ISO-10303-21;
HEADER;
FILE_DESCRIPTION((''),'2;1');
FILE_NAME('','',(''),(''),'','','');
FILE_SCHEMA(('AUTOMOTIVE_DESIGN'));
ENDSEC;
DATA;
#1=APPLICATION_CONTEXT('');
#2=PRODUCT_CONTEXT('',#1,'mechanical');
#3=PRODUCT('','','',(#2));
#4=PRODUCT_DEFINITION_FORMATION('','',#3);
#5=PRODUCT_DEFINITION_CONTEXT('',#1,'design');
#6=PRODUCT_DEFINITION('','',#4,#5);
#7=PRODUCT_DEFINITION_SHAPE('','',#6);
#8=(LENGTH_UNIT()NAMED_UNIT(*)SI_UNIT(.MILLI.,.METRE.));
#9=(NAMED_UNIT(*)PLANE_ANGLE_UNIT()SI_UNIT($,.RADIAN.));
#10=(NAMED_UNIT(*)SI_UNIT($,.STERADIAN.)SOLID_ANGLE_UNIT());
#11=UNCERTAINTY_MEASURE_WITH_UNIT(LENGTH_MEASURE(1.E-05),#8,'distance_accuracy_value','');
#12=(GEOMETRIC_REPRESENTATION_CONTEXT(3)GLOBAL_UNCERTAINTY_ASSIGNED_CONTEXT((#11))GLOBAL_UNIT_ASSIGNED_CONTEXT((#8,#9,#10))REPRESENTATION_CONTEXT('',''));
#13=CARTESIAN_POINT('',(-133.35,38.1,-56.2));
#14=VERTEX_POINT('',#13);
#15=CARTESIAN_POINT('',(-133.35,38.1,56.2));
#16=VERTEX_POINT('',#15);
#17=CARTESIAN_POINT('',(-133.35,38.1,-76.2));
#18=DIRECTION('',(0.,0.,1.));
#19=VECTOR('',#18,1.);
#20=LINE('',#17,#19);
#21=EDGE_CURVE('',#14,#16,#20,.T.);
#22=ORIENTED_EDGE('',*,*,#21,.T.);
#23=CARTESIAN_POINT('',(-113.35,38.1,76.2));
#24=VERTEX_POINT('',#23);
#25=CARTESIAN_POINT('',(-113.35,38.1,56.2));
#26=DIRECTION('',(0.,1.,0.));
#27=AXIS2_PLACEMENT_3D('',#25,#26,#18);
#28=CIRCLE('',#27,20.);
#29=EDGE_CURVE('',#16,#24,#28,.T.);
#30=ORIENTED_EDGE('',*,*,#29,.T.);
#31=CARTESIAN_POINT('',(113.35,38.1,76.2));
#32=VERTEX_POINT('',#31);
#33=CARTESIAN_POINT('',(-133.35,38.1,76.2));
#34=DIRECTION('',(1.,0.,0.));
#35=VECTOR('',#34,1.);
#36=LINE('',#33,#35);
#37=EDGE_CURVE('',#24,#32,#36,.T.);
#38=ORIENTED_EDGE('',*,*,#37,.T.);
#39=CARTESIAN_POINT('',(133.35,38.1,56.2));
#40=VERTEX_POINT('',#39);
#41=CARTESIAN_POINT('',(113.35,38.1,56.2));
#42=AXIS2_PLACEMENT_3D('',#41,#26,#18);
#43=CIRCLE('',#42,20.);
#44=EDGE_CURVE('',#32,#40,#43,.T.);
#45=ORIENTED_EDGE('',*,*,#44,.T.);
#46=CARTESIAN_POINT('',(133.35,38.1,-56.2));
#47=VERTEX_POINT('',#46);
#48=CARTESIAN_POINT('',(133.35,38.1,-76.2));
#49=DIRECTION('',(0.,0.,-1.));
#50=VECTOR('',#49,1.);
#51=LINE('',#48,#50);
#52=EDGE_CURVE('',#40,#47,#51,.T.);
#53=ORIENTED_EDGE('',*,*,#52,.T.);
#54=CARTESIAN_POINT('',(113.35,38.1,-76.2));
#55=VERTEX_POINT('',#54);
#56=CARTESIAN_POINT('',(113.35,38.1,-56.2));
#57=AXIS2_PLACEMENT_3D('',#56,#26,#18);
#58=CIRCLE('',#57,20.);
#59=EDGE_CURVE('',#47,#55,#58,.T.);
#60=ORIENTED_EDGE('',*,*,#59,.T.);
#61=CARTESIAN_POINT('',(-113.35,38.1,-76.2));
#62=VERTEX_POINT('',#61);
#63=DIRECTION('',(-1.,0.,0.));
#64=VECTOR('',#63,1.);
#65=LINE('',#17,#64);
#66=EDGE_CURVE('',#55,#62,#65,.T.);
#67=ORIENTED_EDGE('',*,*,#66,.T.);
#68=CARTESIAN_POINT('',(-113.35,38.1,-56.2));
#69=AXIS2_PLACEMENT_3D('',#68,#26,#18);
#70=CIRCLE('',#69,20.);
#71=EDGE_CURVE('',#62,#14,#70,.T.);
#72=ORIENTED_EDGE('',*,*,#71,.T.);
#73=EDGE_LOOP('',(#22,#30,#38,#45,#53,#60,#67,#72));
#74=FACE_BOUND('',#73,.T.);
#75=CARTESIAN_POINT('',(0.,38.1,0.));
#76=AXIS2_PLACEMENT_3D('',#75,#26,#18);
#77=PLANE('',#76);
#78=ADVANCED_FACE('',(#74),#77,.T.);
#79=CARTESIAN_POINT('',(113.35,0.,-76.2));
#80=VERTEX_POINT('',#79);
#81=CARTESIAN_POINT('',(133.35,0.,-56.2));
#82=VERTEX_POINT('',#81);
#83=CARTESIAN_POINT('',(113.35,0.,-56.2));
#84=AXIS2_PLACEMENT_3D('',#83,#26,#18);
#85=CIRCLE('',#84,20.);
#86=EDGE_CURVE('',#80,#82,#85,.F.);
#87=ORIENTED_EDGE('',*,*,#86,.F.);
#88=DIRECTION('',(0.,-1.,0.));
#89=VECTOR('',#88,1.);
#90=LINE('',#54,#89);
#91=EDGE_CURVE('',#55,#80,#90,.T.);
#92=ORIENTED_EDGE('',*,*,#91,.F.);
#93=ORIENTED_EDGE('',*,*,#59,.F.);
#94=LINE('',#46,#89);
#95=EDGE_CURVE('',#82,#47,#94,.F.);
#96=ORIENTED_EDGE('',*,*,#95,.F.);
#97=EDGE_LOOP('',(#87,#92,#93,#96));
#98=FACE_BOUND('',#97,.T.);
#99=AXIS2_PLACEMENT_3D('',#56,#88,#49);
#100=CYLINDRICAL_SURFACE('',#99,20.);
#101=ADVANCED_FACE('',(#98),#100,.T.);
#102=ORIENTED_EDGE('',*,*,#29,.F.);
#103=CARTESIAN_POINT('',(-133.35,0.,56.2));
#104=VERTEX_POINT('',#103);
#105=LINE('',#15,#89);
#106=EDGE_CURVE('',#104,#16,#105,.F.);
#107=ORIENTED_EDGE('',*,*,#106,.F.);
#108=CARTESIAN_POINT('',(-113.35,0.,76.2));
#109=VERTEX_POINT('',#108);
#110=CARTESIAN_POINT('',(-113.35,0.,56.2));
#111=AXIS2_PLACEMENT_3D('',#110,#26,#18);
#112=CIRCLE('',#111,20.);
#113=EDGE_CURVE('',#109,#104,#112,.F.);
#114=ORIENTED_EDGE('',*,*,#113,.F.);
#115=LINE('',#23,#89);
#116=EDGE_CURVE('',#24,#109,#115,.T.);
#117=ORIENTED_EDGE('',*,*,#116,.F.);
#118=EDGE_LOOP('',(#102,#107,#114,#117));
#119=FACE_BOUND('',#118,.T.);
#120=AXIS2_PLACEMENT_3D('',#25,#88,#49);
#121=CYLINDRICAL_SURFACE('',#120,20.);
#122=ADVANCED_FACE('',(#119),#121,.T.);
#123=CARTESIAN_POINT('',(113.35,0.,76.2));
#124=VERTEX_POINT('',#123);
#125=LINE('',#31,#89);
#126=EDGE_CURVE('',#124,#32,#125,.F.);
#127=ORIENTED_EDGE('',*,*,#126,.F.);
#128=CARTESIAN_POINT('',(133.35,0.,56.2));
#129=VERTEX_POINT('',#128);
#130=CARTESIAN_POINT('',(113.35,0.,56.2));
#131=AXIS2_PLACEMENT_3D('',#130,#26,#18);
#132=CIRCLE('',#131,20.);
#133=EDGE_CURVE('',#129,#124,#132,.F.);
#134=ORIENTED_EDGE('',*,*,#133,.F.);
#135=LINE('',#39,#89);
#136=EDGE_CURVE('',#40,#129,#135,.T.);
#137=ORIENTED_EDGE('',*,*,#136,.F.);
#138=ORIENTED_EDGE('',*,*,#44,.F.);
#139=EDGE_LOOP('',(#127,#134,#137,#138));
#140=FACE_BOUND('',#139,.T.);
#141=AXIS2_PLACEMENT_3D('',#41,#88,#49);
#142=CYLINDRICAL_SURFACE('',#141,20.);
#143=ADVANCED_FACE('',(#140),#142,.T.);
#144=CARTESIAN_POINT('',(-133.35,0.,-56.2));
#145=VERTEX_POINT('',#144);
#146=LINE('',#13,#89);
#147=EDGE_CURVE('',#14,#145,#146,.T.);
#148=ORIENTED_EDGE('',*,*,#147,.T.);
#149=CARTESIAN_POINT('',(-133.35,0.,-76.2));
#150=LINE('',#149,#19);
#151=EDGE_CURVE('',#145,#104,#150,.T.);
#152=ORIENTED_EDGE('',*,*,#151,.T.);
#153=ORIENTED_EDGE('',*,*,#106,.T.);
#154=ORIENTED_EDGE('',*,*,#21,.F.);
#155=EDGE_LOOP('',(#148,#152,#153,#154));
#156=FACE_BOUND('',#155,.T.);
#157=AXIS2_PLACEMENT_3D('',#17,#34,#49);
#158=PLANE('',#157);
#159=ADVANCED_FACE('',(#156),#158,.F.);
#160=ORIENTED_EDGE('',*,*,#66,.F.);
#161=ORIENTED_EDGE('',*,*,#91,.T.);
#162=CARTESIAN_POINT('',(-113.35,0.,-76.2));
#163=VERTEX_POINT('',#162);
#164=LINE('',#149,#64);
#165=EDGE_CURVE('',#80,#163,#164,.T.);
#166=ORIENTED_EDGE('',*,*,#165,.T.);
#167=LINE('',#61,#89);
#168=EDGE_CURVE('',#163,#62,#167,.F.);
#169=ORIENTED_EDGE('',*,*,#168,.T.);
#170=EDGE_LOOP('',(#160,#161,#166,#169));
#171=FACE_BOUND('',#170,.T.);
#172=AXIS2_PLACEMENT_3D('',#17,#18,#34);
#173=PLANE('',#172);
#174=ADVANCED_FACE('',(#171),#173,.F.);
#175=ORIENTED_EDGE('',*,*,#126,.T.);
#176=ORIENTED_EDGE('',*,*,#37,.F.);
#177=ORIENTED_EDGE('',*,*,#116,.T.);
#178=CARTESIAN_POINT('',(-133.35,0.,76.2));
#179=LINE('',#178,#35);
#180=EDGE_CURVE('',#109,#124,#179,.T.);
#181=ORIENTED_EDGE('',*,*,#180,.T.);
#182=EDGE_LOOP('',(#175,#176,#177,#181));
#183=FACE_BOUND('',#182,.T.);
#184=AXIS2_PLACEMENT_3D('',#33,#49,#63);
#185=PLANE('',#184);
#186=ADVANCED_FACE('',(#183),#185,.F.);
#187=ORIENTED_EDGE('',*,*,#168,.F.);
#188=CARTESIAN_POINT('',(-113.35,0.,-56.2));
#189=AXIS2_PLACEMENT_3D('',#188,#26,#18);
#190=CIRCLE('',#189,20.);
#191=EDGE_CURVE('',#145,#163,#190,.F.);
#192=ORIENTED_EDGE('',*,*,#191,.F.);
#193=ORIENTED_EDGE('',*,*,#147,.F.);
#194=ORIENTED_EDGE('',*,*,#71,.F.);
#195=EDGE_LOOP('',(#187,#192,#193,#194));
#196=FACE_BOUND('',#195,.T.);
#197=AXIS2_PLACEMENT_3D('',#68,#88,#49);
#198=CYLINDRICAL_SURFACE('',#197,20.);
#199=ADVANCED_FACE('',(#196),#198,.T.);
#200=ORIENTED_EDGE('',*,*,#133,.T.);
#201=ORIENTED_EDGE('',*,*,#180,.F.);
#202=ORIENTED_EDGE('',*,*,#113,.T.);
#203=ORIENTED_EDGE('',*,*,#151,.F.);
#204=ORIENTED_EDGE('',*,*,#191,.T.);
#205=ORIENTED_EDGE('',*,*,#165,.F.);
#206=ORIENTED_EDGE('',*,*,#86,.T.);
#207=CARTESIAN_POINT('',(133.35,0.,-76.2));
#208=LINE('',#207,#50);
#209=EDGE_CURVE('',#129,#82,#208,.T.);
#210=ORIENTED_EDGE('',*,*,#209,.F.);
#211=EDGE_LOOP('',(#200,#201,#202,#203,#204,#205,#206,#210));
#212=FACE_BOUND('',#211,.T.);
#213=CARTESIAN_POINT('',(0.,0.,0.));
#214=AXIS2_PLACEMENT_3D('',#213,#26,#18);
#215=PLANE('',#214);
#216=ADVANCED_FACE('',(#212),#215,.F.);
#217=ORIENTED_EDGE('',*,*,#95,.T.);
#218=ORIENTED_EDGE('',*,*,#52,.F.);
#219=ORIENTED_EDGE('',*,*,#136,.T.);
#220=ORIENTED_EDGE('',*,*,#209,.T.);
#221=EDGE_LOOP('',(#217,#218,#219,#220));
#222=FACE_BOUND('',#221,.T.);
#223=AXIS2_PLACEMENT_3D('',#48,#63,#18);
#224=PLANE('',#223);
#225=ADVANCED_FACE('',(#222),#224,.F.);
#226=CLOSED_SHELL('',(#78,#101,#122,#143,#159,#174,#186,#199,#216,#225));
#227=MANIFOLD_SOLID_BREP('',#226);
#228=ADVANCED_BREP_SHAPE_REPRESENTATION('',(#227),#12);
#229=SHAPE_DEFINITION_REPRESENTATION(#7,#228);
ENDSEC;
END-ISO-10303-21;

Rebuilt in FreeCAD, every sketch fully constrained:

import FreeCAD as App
import Part
import Sketcher
Q = App.Units.Quantity


def edges_at(feature, points):
    """Names of the edges that pass closest to the given points."""
    edges = feature.Shape.Edges
    near = lambda p: min(range(len(edges)), key=lambda i: edges[i].distToShape(Part.Vertex(*p))[0])
    return sorted({f"Edge{near(p) + 1}" for p in points})

doc = App.newDocument("Part")
params = doc.addObject("Spreadsheet::Sheet", "Params")
for row, (alias, value) in enumerate([
    ("sketch1_height", "6 in"),
    ("sketch1_width", "10.5 in"),
    ("pad1_length", "1.5 in"),
    ("fillet_radius", "20 mm"),
], start=1):
    params.set(f"A{row}", alias)
    params.set(f"B{row}", "=" + value)
    params.setAlias(f"B{row}", alias)

body = doc.addObject("PartDesign::Body", "Body")

# Sketch on XZ plane
sketch1 = body.newObject("Sketcher::SketchObject", "Sketch")
sketch1.AttachmentSupport = (doc.getObject("XZ_Plane"), [""])
sketch1.MapMode = "FlatFace"
sketch1.addGeometry(Part.LineSegment(App.Vector(-133, -76, 0), App.Vector(-133, 76, 0)), False)
sketch1.addGeometry(Part.LineSegment(App.Vector(-133, 76, 0), App.Vector(133, 76, 0)), False)
sketch1.addGeometry(Part.LineSegment(App.Vector(133, 76, 0), App.Vector(133, -76, 0)), False)
sketch1.addGeometry(Part.LineSegment(App.Vector(133, -76, 0), App.Vector(-133, -76, 0)), False)
sketch1.addConstraint(Sketcher.Constraint("Coincident", 0, 2, 1, 1))
sketch1.addConstraint(Sketcher.Constraint("Coincident", 1, 2, 2, 1))
sketch1.addConstraint(Sketcher.Constraint("Coincident", 2, 2, 3, 1))
sketch1.addConstraint(Sketcher.Constraint("Coincident", 3, 2, 0, 1))
sketch1.addConstraint(Sketcher.Constraint("Vertical", 0))
sketch1.addConstraint(Sketcher.Constraint("Horizontal", 1))
sketch1.addConstraint(Sketcher.Constraint("Vertical", 2))
sketch1.addConstraint(Sketcher.Constraint("Horizontal", 3))
sketch1.addConstraint(Sketcher.Constraint("Symmetric", 0, 2, 2, 2, -1, 1))
sketch1.addConstraint(Sketcher.Constraint("DistanceY", 0, 1, 0, 2, Q("6 in")))
sketch1.addConstraint(Sketcher.Constraint("DistanceX", 1, 1, 1, 2, Q("10.5 in")))
sketch1.setExpression("Constraints[9]", "Params.sketch1_height")
sketch1.setExpression("Constraints[10]", "Params.sketch1_width")
pad1 = body.newObject("PartDesign::Pad", "Pad")
pad1.Profile = sketch1
pad1.setExpression("Length", "Params.pad1_length")
pad1.Reversed = True
doc.recompute()

fillet = body.newObject("PartDesign::Fillet", "Fillet")
fillet.Base = (pad1, edges_at(pad1, [
    (-133.35, 19.05, -76.2),
    (133.35, 19.05, -76.2),
    (133.35, 19.05, 76.2),
    (-133.35, 19.05, 76.2),
]))
fillet.setExpression("Radius", "Params.fillet_radius")

doc.recompute()
